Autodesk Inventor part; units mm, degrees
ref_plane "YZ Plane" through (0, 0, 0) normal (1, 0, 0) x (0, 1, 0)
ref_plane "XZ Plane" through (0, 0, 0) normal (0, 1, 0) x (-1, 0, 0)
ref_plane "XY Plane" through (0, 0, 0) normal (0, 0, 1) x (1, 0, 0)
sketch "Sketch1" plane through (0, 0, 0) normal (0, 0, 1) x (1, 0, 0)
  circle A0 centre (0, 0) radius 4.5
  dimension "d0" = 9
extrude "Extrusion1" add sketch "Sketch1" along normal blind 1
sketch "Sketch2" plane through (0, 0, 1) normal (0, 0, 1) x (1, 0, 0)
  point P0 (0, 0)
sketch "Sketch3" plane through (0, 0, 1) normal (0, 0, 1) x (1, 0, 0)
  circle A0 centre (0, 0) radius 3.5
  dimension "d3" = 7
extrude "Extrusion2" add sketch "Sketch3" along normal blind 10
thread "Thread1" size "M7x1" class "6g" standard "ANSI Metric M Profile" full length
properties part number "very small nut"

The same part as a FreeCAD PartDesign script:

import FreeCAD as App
import Part
import Sketcher

V = App.Vector

doc = App.newDocument("Part")
body = doc.addObject("PartDesign::Body", "Body")

# Sketch on XY plane
sketch1 = body.newObject("Sketcher::SketchObject", "Sketch")
sketch1.AttachmentSupport = (doc.getObject("XY_Plane"), [""])
sketch1.MapMode = "FlatFace"
sketch1.addGeometry(Part.Circle(V(0, 0, 0), V(0, 0, 1), 4.5), False)
sketch1.addConstraint(Sketcher.Constraint("Coincident", 0, 3, -1, 1))
sketch1.addConstraint(Sketcher.Constraint("Diameter", 0, 9.0))
pad1 = body.newObject("PartDesign::Pad", "Pad")
pad1.Profile = sketch1
pad1.Length = 1

# Sketch on XY plane
sketch2 = body.newObject("Sketcher::SketchObject", "Sketch001")
sketch2.AttachmentSupport = (doc.getObject("XY_Plane"), [""])
sketch2.MapMode = "FlatFace"
sketch2.AttachmentOffset = App.Placement(V(0, 0, 1), App.Rotation())
sketch2.addGeometry(Part.Circle(V(0, 0, 0), V(0, 0, 1), 3.5), False)
sketch2.addConstraint(Sketcher.Constraint("Coincident", 0, 3, -1, 1))
sketch2.addConstraint(Sketcher.Constraint("Diameter", 0, 7.0))
pad2 = body.newObject("PartDesign::Pad", "Pad001")
pad2.Profile = sketch2
pad2.Length = 10

doc.recompute()
